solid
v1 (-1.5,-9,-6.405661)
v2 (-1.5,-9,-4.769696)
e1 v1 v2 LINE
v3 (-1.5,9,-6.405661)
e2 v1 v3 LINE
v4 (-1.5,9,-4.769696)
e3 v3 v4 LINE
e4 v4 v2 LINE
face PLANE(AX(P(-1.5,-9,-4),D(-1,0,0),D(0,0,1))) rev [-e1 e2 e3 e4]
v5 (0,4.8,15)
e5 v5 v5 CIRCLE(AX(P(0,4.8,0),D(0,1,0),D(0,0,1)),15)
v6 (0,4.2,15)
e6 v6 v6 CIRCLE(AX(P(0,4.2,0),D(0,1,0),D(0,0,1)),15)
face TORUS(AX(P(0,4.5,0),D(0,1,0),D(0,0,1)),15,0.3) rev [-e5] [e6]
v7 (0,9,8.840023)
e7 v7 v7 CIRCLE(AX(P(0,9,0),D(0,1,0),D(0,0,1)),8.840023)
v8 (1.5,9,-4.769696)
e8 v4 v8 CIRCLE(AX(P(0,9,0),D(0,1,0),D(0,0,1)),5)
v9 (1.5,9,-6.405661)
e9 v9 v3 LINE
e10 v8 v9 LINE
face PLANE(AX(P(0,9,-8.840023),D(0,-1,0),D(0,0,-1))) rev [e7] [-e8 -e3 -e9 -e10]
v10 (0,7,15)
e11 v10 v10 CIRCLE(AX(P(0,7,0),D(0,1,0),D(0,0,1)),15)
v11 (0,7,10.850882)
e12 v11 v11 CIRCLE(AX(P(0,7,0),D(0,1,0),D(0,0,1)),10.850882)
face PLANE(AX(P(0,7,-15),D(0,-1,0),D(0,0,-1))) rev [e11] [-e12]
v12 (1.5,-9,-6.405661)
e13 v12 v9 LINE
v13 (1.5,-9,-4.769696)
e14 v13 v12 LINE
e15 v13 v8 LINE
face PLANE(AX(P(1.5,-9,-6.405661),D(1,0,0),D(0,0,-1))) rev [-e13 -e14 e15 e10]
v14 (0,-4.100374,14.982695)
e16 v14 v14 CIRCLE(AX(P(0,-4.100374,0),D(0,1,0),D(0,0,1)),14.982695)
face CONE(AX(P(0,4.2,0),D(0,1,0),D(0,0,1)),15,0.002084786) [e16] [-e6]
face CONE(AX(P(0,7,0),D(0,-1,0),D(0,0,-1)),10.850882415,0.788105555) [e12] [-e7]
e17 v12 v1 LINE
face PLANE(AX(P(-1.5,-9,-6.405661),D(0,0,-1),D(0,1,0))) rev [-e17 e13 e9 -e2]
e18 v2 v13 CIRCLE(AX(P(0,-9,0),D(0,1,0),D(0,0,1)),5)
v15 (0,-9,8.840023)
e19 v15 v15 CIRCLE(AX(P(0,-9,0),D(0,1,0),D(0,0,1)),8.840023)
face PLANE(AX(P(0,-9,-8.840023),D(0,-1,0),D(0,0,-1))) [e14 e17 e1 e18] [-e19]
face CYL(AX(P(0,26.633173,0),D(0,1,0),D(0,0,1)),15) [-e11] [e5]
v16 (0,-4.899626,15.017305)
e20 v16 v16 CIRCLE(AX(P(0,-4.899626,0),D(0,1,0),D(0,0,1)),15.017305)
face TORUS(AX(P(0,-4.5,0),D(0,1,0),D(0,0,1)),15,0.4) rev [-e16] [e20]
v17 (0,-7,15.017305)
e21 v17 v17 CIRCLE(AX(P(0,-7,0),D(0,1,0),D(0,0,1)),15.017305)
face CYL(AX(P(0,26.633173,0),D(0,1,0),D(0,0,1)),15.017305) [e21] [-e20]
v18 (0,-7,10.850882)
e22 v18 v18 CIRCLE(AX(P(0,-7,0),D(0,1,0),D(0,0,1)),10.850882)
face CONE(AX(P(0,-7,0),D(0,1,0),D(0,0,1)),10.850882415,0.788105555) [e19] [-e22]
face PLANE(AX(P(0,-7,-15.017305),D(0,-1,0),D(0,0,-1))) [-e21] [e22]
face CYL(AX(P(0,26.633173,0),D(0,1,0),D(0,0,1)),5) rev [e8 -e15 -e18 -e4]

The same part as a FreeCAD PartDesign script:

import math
import FreeCAD as App
import Part
import Sketcher
Q = App.Units.Quantity

doc = App.newDocument("Part")
body = doc.addObject("PartDesign::Body", "Body")

# Sketch on YZ plane
sketch1 = body.newObject("Sketcher::SketchObject", "Sketch")
sketch1.AttachmentSupport = (doc.getObject("YZ_Plane"), [""])
sketch1.MapMode = "FlatFace"
sketch1.addGeometry([
    Part.LineSegment(App.Vector(4.8, -15, 0), App.Vector(7, -15, 0)),  # 0
    Part.LineSegment(App.Vector(7, -15, 0), App.Vector(7, -10.85, 0)),  # 1
    Part.LineSegment(App.Vector(7, -10.85, 0), App.Vector(9, -8.84, 0)),  # 2
    Part.LineSegment(App.Vector(9, -8.84, 0), App.Vector(9, -5, 0)),  # 3
    Part.LineSegment(App.Vector(9, -5, 0), App.Vector(-9, -5, 0)),  # 4
    Part.LineSegment(App.Vector(-9, -5, 0), App.Vector(-9, -8.84, 0)),  # 5
    Part.LineSegment(App.Vector(-9, -8.84, 0), App.Vector(-7, -10.85, 0)),  # 6
    Part.LineSegment(App.Vector(-7, -10.85, 0), App.Vector(-7, -15.02, 0)),  # 7
    Part.LineSegment(App.Vector(-7, -15.02, 0), App.Vector(-4.9, -15.02, 0)),  # 8
    Part.ArcOfCircle(Part.Circle(App.Vector(-4.5, -15, 0), App.Vector(0, 0, 1), 0.4), math.radians(2), math.radians(182)),  # 9
    Part.LineSegment(App.Vector(-4.1, -14.98, 0), App.Vector(4.2, -15, 0)),  # 10
    Part.ArcOfCircle(Part.Circle(App.Vector(4.5, -15, 0), App.Vector(0, 0, 1), 0.3), math.radians(0), math.radians(180)),  # 11
], False)
sketch1.addConstraint([
    Sketcher.Constraint("Coincident", 0, 2, 1, 1),
    Sketcher.Constraint("Coincident", 1, 2, 2, 1),
    Sketcher.Constraint("Coincident", 2, 2, 3, 1),
    Sketcher.Constraint("Coincident", 3, 2, 4, 1),
    Sketcher.Constraint("Coincident", 4, 2, 5, 1),
    Sketcher.Constraint("Coincident", 5, 2, 6, 1),
    Sketcher.Constraint("Coincident", 6, 2, 7, 1),
    Sketcher.Constraint("Coincident", 7, 2, 8, 1),
    Sketcher.Constraint("Coincident", 8, 2, 9, 2),
    Sketcher.Constraint("Coincident", 9, 1, 10, 1),
    Sketcher.Constraint("Coincident", 10, 2, 11, 2),
    Sketcher.Constraint("Coincident", 11, 1, 0, 1),
    Sketcher.Constraint("Horizontal", 0),
    Sketcher.Constraint("Vertical", 1),
    Sketcher.Constraint("Vertical", 3),
    Sketcher.Constraint("Horizontal", 4),
    Sketcher.Constraint("Vertical", 5),
    Sketcher.Constraint("Vertical", 7),
    Sketcher.Constraint("Horizontal", 8),
    Sketcher.Constraint("Symmetric", 9, 3, 11, 3, -2),
    Sketcher.Constraint("Symmetric", 2, 2, 5, 2, -2),
    Sketcher.Constraint("Symmetric", 1, 2, 6, 2, -2),
    Sketcher.Constraint("Horizontal", 11, 3, 0, 2),
    Sketcher.Constraint("Horizontal", 0, 2, 10, 2),
    Sketcher.Constraint("Radius", 9, Q("0.4 mm")),
    Sketcher.Constraint("Radius", 11, Q("0.3 mm")),
    Sketcher.Constraint("DistanceX", 4, 2, 4, 1, Q("18 mm")),
    Sketcher.Constraint("DistanceX", 0, 1, 0, 2, Q("2.2 mm")),
    Sketcher.Constraint("DistanceY", 9, 3, -1, 1, Q("15 mm")),
    Sketcher.Constraint("DistanceX", -1, 1, 0, 2, Q("7 mm")),
    Sketcher.Constraint("DistanceY", 3, 2, -1, 1, Q("5 mm")),
    Sketcher.Constraint("DistanceX", 8, 1, 8, 2, Q("2.100374 mm")),
    Sketcher.Constraint("DistanceY", 1, 1, 1, 2, Q("4.149118 mm")),
    Sketcher.Constraint("DistanceY", 3, 1, 3, 2, Q("3.840023 mm")),
    Sketcher.Constraint("DistanceX", 8, 2, 9, 1, Q("0.799251 mm")),
])
revolution = body.newObject("PartDesign::Revolution", "Revolution")
revolution.Profile = sketch1
revolution.ReferenceAxis = (sketch1, ["H_Axis"])
revolution.Angle = 360

# Sketch on XZ plane
sketch2 = body.newObject("Sketcher::SketchObject", "Sketch001")
sketch2.AttachmentSupport = (doc.getObject("XZ_Plane"), [""])
sketch2.MapMode = "FlatFace"
sketch2.AttachmentOffset = App.Placement(App.Vector(0, 0, -9), App.Rotation())
sketch2.addGeometry([
    Part.LineSegment(App.Vector(-1.5, -6.4, 0), App.Vector(-1.5, -4, 0)),
    Part.LineSegment(App.Vector(-1.5, -4, 0), App.Vector(1.5, -4, 0)),
    Part.LineSegment(App.Vector(1.5, -4, 0), App.Vector(1.5, -6.4, 0)),
    Part.LineSegment(App.Vector(1.5, -6.4, 0), App.Vector(-1.5, -6.4, 0)),
], False)
sketch2.addConstraint([
    Sketcher.Constraint("Coincident", 0, 2, 1, 1),
    Sketcher.Constraint("Coincident", 1, 2, 2, 1),
    Sketcher.Constraint("Coincident", 2, 2, 3, 1),
    Sketcher.Constraint("Coincident", 3, 2, 0, 1),
    Sketcher.Constraint("Vertical", 0),
    Sketcher.Constraint("Horizontal", 1),
    Sketcher.Constraint("Vertical", 2),
    Sketcher.Constraint("Horizontal", 3),
    Sketcher.Constraint("DistanceX", 1, 1, 1, 2, Q("3 mm")),
    Sketcher.Constraint("DistanceY", 0, 2, -1, 1, Q("4 mm")),
    Sketcher.Constraint("DistanceX", 0, 2, -1, 1, Q("1.5 mm")),
    Sketcher.Constraint("DistanceY", 0, 1, 0, 2, Q("2.405661 mm")),
])
pocket1 = body.newObject("PartDesign::Pocket", "Pocket")
pocket1.Profile = sketch2
pocket1.Type = "ThroughAll"
pocket1.Reversed = True

doc.recompute()
